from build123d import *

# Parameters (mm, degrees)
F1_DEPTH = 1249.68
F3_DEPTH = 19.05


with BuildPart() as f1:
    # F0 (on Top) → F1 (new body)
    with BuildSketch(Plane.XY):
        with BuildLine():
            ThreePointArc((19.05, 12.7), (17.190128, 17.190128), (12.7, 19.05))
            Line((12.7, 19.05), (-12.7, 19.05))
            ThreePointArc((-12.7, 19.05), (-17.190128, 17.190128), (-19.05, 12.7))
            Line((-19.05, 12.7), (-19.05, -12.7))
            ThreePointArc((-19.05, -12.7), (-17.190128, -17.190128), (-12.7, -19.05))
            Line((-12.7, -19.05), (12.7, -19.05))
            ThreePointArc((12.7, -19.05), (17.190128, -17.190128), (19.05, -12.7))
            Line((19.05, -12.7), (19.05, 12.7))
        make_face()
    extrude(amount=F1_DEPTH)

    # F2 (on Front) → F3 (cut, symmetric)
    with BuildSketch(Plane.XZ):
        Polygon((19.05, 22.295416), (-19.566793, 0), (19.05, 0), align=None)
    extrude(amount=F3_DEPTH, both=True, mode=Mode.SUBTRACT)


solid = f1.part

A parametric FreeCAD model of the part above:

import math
import FreeCAD as App
import Part
import Sketcher
from FreeCAD import Vector
Q = App.Units.Quantity

doc = App.newDocument("Part")
body = doc.addObject("PartDesign::Body", "Body")

sketch1 = body.newObject("Sketcher::SketchObject", "Sketch")
sketch1.AttachmentSupport = (doc.getObject("XY_Plane"), [""])
sketch1.MapMode = "FlatFace"
sketch1.addGeometry(Part.ArcOfCircle(Part.Circle(Vector(13, 13, 0), Vector(0, 0, 1), 6), math.radians(0), math.radians(90)), False)
sketch1.addGeometry(Part.LineSegment(Vector(13, 19, 0), Vector(-13, 19, 0)), False)
sketch1.addGeometry(Part.ArcOfCircle(Part.Circle(Vector(-13, 13, 0), Vector(0, 0, 1), 6), math.radians(90), math.radians(180)), False)
sketch1.addGeometry(Part.LineSegment(Vector(-19, 13, 0), Vector(-19, -13, 0)), False)
sketch1.addGeometry(Part.ArcOfCircle(Part.Circle(Vector(-13, -13, 0), Vector(0, 0, 1), 6), math.radians(-180), math.radians(-90)), False)
sketch1.addGeometry(Part.LineSegment(Vector(-13, -19, 0), Vector(13, -19, 0)), False)
sketch1.addGeometry(Part.ArcOfCircle(Part.Circle(Vector(13, -13, 0), Vector(0, 0, 1), 6), math.radians(-90), math.radians(0)), False)
sketch1.addGeometry(Part.LineSegment(Vector(19, -13, 0), Vector(19, 13, 0)), False)
sketch1.addConstraint(Sketcher.Constraint("Tangent", 0, 2, 1, 1))
sketch1.addConstraint(Sketcher.Constraint("Tangent", 1, 2, 2, 1))
sketch1.addConstraint(Sketcher.Constraint("Tangent", 2, 2, 3, 1))
sketch1.addConstraint(Sketcher.Constraint("Tangent", 3, 2, 4, 1))
sketch1.addConstraint(Sketcher.Constraint("Tangent", 4, 2, 5, 1))
sketch1.addConstraint(Sketcher.Constraint("Tangent", 5, 2, 6, 1))
sketch1.addConstraint(Sketcher.Constraint("Tangent", 6, 2, 7, 1))
sketch1.addConstraint(Sketcher.Constraint("Tangent", 7, 2, 0, 1))
sketch1.addConstraint(Sketcher.Constraint("Horizontal", 1))
sketch1.addConstraint(Sketcher.Constraint("Vertical", 3))
sketch1.addConstraint(Sketcher.Constraint("Horizontal", 5))
sketch1.addConstraint(Sketcher.Constraint("Vertical", 7))
sketch1.addConstraint(Sketcher.Constraint("Equal", 0, 2))
sketch1.addConstraint(Sketcher.Constraint("Equal", 2, 4))
sketch1.addConstraint(Sketcher.Constraint("Equal", 4, 6))
sketch1.addConstraint(Sketcher.Constraint("Symmetric", 0, 3, 4, 3, -1, 1))
sketch1.addConstraint(Sketcher.Constraint("Equal", 5, 3))
sketch1.addConstraint(Sketcher.Constraint("DistanceX", 1, 2, 1, 1, Q("1 in")))
sketch1.addConstraint(Sketcher.Constraint("Radius", 0, Q("0.25 in")))
pad1 = body.newObject("PartDesign::Pad", "Pad")
pad1.Profile = sketch1
pad1.Length = Q("49.2 in")

sketch2 = body.newObject("Sketcher::SketchObject", "Sketch001")
sketch2.AttachmentSupport = (doc.getObject("XZ_Plane"), [""])
sketch2.MapMode = "FlatFace"
sketch2.addGeometry(Part.LineSegment(Vector(19, 22, 0), Vector(-20, 0, 0)), False)
sketch2.addGeometry(Part.LineSegment(Vector(-20, 0, 0), Vector(19, 0, 0)), False)
sketch2.addGeometry(Part.LineSegment(Vector(19, 0, 0), Vector(19, 22, 0)), False)
sketch2.addConstraint(Sketcher.Constraint("Coincident", 0, 2, 1, 1))
sketch2.addConstraint(Sketcher.Constraint("Coincident", 1, 2, 2, 1))
sketch2.addConstraint(Sketcher.Constraint("Coincident", 2, 2, 0, 1))
sketch2.addConstraint(Sketcher.Constraint("Horizontal", 1))
sketch2.addConstraint(Sketcher.Constraint("Vertical", 2))
sketch2.addConstraint(Sketcher.Constraint("PointOnObject", 0, 2, -1))
sketch2.addConstraint(Sketcher.Constraint("Angle", 0, Q("-150 deg")))
sketch2.addConstraint(Sketcher.Constraint("DistanceX", -1, 1, 1, 2, Q("0.75 in")))
sketch2.addConstraint(Sketcher.Constraint("Distance", 0, Q("44.590832 mm")))
pocket1 = body.newObject("PartDesign::Pocket", "Pocket")
pocket1.Profile = sketch2
pocket1.Length = Q("1.5 in")
pocket1.Midplane = True

doc.recompute()
